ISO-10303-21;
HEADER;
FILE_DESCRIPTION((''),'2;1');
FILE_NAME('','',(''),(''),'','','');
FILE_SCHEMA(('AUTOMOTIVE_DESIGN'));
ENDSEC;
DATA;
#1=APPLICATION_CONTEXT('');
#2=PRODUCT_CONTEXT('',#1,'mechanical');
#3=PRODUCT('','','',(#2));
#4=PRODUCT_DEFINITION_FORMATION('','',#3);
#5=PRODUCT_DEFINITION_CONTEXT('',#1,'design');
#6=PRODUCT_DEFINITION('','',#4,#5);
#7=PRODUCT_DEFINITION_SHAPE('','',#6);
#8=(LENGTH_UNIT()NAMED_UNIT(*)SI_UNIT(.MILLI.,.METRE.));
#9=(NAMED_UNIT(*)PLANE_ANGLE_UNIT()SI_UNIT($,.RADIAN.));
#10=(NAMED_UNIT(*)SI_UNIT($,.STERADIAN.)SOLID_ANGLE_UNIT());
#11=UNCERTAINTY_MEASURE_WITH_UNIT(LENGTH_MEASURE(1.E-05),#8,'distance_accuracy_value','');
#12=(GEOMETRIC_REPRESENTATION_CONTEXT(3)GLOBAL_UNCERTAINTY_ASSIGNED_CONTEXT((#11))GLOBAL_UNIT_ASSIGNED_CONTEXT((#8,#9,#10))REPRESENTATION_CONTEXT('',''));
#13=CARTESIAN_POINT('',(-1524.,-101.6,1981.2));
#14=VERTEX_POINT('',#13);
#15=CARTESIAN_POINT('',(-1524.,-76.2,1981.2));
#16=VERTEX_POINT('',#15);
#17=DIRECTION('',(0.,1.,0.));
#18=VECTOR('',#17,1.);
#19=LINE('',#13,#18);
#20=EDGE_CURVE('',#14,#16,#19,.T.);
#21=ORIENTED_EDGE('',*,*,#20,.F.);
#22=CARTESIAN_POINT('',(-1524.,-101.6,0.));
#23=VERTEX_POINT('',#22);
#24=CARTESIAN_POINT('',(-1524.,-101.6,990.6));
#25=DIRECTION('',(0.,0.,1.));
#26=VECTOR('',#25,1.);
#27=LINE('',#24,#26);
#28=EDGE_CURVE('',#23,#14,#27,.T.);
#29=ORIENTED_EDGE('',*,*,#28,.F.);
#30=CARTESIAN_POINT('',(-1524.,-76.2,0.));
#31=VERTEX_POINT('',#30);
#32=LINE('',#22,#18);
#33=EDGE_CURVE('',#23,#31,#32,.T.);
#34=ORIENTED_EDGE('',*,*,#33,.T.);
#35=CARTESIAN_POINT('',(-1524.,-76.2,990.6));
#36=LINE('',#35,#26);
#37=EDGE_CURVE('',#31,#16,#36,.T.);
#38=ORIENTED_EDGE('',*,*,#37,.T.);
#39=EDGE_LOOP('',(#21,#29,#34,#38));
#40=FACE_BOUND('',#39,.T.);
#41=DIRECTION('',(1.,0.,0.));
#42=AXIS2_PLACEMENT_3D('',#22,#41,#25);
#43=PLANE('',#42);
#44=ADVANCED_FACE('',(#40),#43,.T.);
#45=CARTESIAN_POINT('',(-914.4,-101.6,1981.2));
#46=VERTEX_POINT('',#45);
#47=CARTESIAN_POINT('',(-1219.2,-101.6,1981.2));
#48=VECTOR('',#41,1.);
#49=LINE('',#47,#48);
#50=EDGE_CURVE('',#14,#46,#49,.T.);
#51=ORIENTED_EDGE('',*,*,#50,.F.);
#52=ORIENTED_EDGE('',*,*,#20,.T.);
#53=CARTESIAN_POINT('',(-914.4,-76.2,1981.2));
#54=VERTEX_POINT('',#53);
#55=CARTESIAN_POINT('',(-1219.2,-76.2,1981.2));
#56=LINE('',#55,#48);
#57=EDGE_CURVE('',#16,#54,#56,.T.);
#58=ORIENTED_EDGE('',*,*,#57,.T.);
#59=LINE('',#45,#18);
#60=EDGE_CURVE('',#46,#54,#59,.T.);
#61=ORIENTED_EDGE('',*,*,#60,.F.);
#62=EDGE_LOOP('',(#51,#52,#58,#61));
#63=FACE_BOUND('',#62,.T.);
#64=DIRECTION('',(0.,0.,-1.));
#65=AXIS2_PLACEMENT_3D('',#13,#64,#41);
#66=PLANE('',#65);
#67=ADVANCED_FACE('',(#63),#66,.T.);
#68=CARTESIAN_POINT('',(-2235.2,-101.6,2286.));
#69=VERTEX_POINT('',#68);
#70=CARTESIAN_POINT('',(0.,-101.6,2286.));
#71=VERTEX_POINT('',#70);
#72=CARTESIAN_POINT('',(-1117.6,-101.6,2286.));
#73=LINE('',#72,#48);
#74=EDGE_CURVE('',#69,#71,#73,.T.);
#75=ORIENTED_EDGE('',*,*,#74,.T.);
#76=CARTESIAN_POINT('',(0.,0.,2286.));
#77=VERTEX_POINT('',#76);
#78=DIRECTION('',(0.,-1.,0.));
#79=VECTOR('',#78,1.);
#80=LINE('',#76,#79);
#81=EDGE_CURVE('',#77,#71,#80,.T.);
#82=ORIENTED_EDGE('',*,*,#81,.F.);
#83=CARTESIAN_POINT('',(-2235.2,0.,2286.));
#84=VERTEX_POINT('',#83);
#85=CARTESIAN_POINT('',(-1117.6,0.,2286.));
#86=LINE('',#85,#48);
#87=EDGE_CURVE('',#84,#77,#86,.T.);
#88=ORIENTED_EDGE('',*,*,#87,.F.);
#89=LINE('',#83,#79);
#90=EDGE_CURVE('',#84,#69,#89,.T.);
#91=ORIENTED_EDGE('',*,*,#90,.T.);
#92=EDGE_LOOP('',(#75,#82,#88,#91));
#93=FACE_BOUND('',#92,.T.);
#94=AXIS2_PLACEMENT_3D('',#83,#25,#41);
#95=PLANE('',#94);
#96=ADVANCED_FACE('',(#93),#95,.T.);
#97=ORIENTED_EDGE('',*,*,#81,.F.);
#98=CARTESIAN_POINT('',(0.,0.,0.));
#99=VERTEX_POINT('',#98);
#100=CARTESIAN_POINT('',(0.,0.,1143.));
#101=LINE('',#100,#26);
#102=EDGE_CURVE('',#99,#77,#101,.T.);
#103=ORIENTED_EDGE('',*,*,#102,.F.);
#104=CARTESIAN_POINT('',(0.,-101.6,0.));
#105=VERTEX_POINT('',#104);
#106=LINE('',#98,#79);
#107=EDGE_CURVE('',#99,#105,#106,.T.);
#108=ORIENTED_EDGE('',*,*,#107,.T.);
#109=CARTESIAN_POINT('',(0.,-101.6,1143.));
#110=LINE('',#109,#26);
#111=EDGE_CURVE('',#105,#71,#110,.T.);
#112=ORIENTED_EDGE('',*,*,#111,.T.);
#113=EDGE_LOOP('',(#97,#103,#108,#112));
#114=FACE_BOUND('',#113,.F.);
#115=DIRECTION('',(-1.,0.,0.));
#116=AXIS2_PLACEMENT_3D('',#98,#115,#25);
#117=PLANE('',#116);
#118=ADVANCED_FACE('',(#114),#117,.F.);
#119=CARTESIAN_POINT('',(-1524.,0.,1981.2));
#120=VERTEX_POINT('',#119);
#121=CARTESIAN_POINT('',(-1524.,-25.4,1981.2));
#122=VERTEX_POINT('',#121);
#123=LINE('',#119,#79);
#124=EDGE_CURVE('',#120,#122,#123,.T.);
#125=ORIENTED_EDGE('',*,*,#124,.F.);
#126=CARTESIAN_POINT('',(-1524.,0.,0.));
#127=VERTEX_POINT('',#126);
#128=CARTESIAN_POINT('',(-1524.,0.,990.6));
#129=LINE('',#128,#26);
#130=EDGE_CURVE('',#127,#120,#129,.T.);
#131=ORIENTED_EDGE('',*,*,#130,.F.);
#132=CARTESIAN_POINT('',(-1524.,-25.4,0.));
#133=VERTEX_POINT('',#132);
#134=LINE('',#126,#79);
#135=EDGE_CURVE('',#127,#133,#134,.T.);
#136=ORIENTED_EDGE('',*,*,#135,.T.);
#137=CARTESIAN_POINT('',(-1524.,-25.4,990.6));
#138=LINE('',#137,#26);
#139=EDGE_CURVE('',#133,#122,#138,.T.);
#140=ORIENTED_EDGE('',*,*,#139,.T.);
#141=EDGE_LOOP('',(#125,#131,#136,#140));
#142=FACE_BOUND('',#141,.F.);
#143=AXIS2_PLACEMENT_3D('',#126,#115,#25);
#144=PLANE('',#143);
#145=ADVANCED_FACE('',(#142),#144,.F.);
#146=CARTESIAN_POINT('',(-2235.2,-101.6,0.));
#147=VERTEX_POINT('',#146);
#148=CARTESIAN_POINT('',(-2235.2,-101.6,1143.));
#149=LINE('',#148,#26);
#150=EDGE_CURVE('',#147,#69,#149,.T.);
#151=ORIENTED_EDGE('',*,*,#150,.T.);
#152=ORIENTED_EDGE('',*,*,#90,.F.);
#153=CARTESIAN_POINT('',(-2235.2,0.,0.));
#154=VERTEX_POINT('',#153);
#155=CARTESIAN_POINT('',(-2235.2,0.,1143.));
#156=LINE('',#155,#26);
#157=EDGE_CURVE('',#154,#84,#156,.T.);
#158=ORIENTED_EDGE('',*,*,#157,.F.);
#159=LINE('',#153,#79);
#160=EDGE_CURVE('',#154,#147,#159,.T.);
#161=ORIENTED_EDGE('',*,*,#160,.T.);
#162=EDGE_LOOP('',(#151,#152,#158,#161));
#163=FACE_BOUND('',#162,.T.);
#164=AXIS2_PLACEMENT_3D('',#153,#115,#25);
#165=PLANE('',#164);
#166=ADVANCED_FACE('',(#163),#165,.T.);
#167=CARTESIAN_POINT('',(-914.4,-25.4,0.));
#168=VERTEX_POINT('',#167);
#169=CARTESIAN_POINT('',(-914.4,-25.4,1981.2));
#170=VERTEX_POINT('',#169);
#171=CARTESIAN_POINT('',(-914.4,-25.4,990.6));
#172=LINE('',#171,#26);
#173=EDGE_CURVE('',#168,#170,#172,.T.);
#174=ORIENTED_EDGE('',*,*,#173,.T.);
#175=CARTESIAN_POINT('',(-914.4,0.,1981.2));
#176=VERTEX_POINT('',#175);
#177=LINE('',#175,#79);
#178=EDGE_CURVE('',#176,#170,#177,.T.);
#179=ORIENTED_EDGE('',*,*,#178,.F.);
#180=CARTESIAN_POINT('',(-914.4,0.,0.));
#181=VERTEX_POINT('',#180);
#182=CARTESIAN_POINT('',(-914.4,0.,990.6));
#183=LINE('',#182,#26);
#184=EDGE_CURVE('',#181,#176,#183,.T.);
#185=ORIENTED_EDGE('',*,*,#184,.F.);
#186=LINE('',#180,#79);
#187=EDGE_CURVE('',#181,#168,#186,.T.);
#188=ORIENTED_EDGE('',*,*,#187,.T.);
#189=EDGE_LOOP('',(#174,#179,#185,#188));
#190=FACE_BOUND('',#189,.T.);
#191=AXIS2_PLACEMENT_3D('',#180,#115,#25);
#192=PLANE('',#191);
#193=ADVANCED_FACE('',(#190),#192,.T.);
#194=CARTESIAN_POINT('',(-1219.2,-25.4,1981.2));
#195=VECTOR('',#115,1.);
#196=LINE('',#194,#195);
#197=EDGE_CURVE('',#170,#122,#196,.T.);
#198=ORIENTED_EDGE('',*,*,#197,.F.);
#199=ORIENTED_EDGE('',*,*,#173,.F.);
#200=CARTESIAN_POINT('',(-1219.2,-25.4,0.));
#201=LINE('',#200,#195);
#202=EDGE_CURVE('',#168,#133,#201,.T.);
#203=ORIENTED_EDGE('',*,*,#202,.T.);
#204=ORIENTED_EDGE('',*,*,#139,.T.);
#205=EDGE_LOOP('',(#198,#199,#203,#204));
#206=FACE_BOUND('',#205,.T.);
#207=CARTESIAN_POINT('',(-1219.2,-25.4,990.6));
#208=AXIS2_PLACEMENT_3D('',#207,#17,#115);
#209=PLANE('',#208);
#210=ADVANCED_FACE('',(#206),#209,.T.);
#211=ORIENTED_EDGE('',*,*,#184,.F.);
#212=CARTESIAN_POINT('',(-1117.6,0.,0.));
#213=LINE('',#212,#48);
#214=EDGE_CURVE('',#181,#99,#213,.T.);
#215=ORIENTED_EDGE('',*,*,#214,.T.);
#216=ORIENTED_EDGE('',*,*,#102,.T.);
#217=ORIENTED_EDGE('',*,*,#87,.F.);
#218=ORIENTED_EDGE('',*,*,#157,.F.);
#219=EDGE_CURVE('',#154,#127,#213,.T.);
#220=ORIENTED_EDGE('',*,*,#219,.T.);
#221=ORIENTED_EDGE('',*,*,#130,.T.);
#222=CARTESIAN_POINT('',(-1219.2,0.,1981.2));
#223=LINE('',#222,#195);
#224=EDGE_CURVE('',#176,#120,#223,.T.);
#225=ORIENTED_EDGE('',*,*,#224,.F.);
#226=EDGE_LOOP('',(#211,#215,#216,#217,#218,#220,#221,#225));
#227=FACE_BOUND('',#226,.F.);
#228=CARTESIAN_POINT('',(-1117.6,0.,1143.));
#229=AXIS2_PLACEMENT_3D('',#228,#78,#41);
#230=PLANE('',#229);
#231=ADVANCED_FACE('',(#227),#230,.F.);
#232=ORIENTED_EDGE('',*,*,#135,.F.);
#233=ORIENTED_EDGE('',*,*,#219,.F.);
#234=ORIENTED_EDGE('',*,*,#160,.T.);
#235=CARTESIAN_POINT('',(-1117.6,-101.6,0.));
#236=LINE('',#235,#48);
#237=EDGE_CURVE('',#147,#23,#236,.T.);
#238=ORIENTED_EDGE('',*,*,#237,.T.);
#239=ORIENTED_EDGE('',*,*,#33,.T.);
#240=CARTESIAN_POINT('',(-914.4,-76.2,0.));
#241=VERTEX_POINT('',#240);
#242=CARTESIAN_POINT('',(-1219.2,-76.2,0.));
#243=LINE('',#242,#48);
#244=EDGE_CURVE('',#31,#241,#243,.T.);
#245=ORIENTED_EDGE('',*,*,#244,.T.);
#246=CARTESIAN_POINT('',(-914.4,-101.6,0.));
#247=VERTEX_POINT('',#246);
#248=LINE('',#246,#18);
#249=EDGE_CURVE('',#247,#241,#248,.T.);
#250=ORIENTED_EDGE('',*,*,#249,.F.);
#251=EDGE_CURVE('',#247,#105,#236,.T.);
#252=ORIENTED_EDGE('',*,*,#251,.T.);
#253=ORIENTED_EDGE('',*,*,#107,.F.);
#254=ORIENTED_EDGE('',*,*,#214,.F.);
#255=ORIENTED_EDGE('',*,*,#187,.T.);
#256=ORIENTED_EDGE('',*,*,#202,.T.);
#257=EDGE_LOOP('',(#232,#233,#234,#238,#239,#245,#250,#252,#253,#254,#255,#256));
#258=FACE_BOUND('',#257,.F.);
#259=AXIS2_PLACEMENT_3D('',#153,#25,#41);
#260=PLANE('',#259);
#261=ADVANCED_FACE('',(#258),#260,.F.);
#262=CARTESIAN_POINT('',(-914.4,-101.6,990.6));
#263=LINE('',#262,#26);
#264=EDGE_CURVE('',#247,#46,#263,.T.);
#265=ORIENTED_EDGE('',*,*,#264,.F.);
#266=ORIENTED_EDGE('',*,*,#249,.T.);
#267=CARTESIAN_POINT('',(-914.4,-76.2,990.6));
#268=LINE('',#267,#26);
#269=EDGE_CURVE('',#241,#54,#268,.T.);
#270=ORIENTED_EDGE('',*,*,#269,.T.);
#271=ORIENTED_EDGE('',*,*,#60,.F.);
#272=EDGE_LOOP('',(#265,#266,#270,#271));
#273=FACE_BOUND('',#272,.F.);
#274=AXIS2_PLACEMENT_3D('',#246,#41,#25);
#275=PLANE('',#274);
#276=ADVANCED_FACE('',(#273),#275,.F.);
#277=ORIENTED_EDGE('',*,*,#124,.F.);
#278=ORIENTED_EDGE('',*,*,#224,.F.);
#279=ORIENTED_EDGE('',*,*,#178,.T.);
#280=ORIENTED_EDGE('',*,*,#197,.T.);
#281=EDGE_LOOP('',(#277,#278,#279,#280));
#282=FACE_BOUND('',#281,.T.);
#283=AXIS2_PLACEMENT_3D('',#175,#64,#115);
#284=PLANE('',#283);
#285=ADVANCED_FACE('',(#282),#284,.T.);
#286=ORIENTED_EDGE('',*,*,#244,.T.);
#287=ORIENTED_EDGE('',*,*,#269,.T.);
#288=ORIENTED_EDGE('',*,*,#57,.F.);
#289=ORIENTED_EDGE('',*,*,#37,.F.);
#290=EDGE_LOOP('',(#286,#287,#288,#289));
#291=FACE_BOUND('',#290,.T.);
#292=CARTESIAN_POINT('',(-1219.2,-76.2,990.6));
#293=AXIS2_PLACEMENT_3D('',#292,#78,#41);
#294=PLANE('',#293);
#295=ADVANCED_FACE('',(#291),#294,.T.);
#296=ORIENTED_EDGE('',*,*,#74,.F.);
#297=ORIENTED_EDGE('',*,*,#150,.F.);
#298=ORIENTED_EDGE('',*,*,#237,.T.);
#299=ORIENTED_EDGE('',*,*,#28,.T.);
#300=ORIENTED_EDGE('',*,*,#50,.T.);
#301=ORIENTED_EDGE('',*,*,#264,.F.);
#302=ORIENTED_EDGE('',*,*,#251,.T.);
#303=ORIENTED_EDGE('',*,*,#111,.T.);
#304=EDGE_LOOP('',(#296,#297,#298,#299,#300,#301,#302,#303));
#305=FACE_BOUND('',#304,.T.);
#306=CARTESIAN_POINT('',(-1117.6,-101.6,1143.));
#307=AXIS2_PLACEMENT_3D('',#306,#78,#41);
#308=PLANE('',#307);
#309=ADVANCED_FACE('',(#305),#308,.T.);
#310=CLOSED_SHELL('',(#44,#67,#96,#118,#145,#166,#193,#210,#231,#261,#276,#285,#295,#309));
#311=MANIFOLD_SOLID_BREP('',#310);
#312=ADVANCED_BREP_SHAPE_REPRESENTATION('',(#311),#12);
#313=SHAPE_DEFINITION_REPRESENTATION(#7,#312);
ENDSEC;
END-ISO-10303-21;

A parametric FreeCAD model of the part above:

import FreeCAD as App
import Part
import Sketcher

V = App.Vector
Q = App.Units.Quantity

doc = App.newDocument("Part")
body = doc.addObject("PartDesign::Body", "Body")

# Sketch on XZ plane
sketch1 = body.newObject("Sketcher::SketchObject", "Sketch")
sketch1.AttachmentSupport = (doc.getObject("XZ_Plane"), [""])
sketch1.MapMode = "FlatFace"
sketch1.addGeometry([
    Part.LineSegment(V(-2235, 2286, 0), V(-2235, 0, 0)),
    Part.LineSegment(V(-2235, 0, 0), V(0, 0, 0)),
    Part.LineSegment(V(0, 0, 0), V(0, 2286, 0)),
    Part.LineSegment(V(0, 2286, 0), V(-2235, 2286, 0)),
], False)
sketch1.addConstraint([
    Sketcher.Constraint("Coincident", 0, 2, 1, 1),
    Sketcher.Constraint("Coincident", 1, 2, 2, 1),
    Sketcher.Constraint("Coincident", 2, 2, 3, 1),
    Sketcher.Constraint("Coincident", 3, 2, 0, 1),
    Sketcher.Constraint("Vertical", 0),
    Sketcher.Constraint("Horizontal", 1),
    Sketcher.Constraint("Vertical", 2),
    Sketcher.Constraint("Horizontal", 3),
    Sketcher.Constraint("Coincident", 1, 2, -1, 1),
    Sketcher.Constraint("DistanceX", 1, 1, 1, 2, Q("88 in")),
    Sketcher.Constraint("DistanceY", 0, 2, 0, 1, Q("90 in")),
])
pad1 = body.newObject("PartDesign::Pad", "Pad")
pad1.Profile = sketch1
pad1.Length = Q("4 in")

# Sketch on XZ plane
sketch2 = body.newObject("Sketcher::SketchObject", "Sketch001")
sketch2.AttachmentSupport = (doc.getObject("XZ_Plane"), [""])
sketch2.MapMode = "FlatFace"
sketch2.AttachmentOffset = App.Placement(V(0, 0, 4 * 25.4), App.Rotation())
sketch2.addGeometry([
    Part.LineSegment(V(-1524, 1981, 0), V(-1524, 0, 0)),
    Part.LineSegment(V(-1524, 0, 0), V(-914, 0, 0)),
    Part.LineSegment(V(-914, 0, 0), V(-914, 1981, 0)),
    Part.LineSegment(V(-914, 1981, 0), V(-1524, 1981, 0)),
], False)
sketch2.addConstraint([
    Sketcher.Constraint("Coincident", 0, 2, 1, 1),
    Sketcher.Constraint("Coincident", 1, 2, 2, 1),
    Sketcher.Constraint("Coincident", 2, 2, 3, 1),
    Sketcher.Constraint("Coincident", 3, 2, 0, 1),
    Sketcher.Constraint("Vertical", 0),
    Sketcher.Constraint("Horizontal", 1),
    Sketcher.Constraint("Vertical", 2),
    Sketcher.Constraint("Horizontal", 3),
    Sketcher.Constraint("PointOnObject", 0, 2, -1),
    Sketcher.Constraint("DistanceX", 1, 1, 1, 2, Q("24 in")),
    Sketcher.Constraint("DistanceY", 0, 2, 0, 1, Q("78 in")),
    Sketcher.Constraint("DistanceX", 0, 2, -1, 1, Q("60 in")),
])
pocket1 = body.newObject("PartDesign::Pocket", "Pocket")
pocket1.Profile = sketch2
pocket1.Length = Q("1 in")

# Sketch on XZ plane
sketch3 = body.newObject("Sketcher::SketchObject", "Sketch002")
sketch3.AttachmentSupport = (doc.getObject("XZ_Plane"), [""])
sketch3.MapMode = "FlatFace"
sketch3.addGeometry([
    Part.LineSegment(V(-914, 1981, 0), V(-914, 0, 0)),
    Part.LineSegment(V(-914, 0, 0), V(-1524, 0, 0)),
    Part.LineSegment(V(-1524, 0, 0), V(-1524, 1981, 0)),
    Part.LineSegment(V(-1524, 1981, 0), V(-914, 1981, 0)),
], False)
sketch3.addConstraint([
    Sketcher.Constraint("Coincident", 0, 2, 1, 1),
    Sketcher.Constraint("Coincident", 1, 2, 2, 1),
    Sketcher.Constraint("Coincident", 2, 2, 3, 1),
    Sketcher.Constraint("Coincident", 3, 2, 0, 1),
    Sketcher.Constraint("Vertical", 0),
    Sketcher.Constraint("Horizontal", 1),
    Sketcher.Constraint("Vertical", 2),
    Sketcher.Constraint("Horizontal", 3),
    Sketcher.Constraint("PointOnObject", 0, 2, -1),
    Sketcher.Constraint("DistanceX", 1, 2, 1, 1, Q("24 in")),
    Sketcher.Constraint("DistanceY", 0, 2, 0, 1, Q("78 in")),
    Sketcher.Constraint("DistanceX", 0, 2, -1, 1, Q("36 in")),
])
pocket2 = body.newObject("PartDesign::Pocket", "Pocket001")
pocket2.Profile = sketch3
pocket2.Length = Q("1 in")
pocket2.Reversed = True

doc.recompute()
